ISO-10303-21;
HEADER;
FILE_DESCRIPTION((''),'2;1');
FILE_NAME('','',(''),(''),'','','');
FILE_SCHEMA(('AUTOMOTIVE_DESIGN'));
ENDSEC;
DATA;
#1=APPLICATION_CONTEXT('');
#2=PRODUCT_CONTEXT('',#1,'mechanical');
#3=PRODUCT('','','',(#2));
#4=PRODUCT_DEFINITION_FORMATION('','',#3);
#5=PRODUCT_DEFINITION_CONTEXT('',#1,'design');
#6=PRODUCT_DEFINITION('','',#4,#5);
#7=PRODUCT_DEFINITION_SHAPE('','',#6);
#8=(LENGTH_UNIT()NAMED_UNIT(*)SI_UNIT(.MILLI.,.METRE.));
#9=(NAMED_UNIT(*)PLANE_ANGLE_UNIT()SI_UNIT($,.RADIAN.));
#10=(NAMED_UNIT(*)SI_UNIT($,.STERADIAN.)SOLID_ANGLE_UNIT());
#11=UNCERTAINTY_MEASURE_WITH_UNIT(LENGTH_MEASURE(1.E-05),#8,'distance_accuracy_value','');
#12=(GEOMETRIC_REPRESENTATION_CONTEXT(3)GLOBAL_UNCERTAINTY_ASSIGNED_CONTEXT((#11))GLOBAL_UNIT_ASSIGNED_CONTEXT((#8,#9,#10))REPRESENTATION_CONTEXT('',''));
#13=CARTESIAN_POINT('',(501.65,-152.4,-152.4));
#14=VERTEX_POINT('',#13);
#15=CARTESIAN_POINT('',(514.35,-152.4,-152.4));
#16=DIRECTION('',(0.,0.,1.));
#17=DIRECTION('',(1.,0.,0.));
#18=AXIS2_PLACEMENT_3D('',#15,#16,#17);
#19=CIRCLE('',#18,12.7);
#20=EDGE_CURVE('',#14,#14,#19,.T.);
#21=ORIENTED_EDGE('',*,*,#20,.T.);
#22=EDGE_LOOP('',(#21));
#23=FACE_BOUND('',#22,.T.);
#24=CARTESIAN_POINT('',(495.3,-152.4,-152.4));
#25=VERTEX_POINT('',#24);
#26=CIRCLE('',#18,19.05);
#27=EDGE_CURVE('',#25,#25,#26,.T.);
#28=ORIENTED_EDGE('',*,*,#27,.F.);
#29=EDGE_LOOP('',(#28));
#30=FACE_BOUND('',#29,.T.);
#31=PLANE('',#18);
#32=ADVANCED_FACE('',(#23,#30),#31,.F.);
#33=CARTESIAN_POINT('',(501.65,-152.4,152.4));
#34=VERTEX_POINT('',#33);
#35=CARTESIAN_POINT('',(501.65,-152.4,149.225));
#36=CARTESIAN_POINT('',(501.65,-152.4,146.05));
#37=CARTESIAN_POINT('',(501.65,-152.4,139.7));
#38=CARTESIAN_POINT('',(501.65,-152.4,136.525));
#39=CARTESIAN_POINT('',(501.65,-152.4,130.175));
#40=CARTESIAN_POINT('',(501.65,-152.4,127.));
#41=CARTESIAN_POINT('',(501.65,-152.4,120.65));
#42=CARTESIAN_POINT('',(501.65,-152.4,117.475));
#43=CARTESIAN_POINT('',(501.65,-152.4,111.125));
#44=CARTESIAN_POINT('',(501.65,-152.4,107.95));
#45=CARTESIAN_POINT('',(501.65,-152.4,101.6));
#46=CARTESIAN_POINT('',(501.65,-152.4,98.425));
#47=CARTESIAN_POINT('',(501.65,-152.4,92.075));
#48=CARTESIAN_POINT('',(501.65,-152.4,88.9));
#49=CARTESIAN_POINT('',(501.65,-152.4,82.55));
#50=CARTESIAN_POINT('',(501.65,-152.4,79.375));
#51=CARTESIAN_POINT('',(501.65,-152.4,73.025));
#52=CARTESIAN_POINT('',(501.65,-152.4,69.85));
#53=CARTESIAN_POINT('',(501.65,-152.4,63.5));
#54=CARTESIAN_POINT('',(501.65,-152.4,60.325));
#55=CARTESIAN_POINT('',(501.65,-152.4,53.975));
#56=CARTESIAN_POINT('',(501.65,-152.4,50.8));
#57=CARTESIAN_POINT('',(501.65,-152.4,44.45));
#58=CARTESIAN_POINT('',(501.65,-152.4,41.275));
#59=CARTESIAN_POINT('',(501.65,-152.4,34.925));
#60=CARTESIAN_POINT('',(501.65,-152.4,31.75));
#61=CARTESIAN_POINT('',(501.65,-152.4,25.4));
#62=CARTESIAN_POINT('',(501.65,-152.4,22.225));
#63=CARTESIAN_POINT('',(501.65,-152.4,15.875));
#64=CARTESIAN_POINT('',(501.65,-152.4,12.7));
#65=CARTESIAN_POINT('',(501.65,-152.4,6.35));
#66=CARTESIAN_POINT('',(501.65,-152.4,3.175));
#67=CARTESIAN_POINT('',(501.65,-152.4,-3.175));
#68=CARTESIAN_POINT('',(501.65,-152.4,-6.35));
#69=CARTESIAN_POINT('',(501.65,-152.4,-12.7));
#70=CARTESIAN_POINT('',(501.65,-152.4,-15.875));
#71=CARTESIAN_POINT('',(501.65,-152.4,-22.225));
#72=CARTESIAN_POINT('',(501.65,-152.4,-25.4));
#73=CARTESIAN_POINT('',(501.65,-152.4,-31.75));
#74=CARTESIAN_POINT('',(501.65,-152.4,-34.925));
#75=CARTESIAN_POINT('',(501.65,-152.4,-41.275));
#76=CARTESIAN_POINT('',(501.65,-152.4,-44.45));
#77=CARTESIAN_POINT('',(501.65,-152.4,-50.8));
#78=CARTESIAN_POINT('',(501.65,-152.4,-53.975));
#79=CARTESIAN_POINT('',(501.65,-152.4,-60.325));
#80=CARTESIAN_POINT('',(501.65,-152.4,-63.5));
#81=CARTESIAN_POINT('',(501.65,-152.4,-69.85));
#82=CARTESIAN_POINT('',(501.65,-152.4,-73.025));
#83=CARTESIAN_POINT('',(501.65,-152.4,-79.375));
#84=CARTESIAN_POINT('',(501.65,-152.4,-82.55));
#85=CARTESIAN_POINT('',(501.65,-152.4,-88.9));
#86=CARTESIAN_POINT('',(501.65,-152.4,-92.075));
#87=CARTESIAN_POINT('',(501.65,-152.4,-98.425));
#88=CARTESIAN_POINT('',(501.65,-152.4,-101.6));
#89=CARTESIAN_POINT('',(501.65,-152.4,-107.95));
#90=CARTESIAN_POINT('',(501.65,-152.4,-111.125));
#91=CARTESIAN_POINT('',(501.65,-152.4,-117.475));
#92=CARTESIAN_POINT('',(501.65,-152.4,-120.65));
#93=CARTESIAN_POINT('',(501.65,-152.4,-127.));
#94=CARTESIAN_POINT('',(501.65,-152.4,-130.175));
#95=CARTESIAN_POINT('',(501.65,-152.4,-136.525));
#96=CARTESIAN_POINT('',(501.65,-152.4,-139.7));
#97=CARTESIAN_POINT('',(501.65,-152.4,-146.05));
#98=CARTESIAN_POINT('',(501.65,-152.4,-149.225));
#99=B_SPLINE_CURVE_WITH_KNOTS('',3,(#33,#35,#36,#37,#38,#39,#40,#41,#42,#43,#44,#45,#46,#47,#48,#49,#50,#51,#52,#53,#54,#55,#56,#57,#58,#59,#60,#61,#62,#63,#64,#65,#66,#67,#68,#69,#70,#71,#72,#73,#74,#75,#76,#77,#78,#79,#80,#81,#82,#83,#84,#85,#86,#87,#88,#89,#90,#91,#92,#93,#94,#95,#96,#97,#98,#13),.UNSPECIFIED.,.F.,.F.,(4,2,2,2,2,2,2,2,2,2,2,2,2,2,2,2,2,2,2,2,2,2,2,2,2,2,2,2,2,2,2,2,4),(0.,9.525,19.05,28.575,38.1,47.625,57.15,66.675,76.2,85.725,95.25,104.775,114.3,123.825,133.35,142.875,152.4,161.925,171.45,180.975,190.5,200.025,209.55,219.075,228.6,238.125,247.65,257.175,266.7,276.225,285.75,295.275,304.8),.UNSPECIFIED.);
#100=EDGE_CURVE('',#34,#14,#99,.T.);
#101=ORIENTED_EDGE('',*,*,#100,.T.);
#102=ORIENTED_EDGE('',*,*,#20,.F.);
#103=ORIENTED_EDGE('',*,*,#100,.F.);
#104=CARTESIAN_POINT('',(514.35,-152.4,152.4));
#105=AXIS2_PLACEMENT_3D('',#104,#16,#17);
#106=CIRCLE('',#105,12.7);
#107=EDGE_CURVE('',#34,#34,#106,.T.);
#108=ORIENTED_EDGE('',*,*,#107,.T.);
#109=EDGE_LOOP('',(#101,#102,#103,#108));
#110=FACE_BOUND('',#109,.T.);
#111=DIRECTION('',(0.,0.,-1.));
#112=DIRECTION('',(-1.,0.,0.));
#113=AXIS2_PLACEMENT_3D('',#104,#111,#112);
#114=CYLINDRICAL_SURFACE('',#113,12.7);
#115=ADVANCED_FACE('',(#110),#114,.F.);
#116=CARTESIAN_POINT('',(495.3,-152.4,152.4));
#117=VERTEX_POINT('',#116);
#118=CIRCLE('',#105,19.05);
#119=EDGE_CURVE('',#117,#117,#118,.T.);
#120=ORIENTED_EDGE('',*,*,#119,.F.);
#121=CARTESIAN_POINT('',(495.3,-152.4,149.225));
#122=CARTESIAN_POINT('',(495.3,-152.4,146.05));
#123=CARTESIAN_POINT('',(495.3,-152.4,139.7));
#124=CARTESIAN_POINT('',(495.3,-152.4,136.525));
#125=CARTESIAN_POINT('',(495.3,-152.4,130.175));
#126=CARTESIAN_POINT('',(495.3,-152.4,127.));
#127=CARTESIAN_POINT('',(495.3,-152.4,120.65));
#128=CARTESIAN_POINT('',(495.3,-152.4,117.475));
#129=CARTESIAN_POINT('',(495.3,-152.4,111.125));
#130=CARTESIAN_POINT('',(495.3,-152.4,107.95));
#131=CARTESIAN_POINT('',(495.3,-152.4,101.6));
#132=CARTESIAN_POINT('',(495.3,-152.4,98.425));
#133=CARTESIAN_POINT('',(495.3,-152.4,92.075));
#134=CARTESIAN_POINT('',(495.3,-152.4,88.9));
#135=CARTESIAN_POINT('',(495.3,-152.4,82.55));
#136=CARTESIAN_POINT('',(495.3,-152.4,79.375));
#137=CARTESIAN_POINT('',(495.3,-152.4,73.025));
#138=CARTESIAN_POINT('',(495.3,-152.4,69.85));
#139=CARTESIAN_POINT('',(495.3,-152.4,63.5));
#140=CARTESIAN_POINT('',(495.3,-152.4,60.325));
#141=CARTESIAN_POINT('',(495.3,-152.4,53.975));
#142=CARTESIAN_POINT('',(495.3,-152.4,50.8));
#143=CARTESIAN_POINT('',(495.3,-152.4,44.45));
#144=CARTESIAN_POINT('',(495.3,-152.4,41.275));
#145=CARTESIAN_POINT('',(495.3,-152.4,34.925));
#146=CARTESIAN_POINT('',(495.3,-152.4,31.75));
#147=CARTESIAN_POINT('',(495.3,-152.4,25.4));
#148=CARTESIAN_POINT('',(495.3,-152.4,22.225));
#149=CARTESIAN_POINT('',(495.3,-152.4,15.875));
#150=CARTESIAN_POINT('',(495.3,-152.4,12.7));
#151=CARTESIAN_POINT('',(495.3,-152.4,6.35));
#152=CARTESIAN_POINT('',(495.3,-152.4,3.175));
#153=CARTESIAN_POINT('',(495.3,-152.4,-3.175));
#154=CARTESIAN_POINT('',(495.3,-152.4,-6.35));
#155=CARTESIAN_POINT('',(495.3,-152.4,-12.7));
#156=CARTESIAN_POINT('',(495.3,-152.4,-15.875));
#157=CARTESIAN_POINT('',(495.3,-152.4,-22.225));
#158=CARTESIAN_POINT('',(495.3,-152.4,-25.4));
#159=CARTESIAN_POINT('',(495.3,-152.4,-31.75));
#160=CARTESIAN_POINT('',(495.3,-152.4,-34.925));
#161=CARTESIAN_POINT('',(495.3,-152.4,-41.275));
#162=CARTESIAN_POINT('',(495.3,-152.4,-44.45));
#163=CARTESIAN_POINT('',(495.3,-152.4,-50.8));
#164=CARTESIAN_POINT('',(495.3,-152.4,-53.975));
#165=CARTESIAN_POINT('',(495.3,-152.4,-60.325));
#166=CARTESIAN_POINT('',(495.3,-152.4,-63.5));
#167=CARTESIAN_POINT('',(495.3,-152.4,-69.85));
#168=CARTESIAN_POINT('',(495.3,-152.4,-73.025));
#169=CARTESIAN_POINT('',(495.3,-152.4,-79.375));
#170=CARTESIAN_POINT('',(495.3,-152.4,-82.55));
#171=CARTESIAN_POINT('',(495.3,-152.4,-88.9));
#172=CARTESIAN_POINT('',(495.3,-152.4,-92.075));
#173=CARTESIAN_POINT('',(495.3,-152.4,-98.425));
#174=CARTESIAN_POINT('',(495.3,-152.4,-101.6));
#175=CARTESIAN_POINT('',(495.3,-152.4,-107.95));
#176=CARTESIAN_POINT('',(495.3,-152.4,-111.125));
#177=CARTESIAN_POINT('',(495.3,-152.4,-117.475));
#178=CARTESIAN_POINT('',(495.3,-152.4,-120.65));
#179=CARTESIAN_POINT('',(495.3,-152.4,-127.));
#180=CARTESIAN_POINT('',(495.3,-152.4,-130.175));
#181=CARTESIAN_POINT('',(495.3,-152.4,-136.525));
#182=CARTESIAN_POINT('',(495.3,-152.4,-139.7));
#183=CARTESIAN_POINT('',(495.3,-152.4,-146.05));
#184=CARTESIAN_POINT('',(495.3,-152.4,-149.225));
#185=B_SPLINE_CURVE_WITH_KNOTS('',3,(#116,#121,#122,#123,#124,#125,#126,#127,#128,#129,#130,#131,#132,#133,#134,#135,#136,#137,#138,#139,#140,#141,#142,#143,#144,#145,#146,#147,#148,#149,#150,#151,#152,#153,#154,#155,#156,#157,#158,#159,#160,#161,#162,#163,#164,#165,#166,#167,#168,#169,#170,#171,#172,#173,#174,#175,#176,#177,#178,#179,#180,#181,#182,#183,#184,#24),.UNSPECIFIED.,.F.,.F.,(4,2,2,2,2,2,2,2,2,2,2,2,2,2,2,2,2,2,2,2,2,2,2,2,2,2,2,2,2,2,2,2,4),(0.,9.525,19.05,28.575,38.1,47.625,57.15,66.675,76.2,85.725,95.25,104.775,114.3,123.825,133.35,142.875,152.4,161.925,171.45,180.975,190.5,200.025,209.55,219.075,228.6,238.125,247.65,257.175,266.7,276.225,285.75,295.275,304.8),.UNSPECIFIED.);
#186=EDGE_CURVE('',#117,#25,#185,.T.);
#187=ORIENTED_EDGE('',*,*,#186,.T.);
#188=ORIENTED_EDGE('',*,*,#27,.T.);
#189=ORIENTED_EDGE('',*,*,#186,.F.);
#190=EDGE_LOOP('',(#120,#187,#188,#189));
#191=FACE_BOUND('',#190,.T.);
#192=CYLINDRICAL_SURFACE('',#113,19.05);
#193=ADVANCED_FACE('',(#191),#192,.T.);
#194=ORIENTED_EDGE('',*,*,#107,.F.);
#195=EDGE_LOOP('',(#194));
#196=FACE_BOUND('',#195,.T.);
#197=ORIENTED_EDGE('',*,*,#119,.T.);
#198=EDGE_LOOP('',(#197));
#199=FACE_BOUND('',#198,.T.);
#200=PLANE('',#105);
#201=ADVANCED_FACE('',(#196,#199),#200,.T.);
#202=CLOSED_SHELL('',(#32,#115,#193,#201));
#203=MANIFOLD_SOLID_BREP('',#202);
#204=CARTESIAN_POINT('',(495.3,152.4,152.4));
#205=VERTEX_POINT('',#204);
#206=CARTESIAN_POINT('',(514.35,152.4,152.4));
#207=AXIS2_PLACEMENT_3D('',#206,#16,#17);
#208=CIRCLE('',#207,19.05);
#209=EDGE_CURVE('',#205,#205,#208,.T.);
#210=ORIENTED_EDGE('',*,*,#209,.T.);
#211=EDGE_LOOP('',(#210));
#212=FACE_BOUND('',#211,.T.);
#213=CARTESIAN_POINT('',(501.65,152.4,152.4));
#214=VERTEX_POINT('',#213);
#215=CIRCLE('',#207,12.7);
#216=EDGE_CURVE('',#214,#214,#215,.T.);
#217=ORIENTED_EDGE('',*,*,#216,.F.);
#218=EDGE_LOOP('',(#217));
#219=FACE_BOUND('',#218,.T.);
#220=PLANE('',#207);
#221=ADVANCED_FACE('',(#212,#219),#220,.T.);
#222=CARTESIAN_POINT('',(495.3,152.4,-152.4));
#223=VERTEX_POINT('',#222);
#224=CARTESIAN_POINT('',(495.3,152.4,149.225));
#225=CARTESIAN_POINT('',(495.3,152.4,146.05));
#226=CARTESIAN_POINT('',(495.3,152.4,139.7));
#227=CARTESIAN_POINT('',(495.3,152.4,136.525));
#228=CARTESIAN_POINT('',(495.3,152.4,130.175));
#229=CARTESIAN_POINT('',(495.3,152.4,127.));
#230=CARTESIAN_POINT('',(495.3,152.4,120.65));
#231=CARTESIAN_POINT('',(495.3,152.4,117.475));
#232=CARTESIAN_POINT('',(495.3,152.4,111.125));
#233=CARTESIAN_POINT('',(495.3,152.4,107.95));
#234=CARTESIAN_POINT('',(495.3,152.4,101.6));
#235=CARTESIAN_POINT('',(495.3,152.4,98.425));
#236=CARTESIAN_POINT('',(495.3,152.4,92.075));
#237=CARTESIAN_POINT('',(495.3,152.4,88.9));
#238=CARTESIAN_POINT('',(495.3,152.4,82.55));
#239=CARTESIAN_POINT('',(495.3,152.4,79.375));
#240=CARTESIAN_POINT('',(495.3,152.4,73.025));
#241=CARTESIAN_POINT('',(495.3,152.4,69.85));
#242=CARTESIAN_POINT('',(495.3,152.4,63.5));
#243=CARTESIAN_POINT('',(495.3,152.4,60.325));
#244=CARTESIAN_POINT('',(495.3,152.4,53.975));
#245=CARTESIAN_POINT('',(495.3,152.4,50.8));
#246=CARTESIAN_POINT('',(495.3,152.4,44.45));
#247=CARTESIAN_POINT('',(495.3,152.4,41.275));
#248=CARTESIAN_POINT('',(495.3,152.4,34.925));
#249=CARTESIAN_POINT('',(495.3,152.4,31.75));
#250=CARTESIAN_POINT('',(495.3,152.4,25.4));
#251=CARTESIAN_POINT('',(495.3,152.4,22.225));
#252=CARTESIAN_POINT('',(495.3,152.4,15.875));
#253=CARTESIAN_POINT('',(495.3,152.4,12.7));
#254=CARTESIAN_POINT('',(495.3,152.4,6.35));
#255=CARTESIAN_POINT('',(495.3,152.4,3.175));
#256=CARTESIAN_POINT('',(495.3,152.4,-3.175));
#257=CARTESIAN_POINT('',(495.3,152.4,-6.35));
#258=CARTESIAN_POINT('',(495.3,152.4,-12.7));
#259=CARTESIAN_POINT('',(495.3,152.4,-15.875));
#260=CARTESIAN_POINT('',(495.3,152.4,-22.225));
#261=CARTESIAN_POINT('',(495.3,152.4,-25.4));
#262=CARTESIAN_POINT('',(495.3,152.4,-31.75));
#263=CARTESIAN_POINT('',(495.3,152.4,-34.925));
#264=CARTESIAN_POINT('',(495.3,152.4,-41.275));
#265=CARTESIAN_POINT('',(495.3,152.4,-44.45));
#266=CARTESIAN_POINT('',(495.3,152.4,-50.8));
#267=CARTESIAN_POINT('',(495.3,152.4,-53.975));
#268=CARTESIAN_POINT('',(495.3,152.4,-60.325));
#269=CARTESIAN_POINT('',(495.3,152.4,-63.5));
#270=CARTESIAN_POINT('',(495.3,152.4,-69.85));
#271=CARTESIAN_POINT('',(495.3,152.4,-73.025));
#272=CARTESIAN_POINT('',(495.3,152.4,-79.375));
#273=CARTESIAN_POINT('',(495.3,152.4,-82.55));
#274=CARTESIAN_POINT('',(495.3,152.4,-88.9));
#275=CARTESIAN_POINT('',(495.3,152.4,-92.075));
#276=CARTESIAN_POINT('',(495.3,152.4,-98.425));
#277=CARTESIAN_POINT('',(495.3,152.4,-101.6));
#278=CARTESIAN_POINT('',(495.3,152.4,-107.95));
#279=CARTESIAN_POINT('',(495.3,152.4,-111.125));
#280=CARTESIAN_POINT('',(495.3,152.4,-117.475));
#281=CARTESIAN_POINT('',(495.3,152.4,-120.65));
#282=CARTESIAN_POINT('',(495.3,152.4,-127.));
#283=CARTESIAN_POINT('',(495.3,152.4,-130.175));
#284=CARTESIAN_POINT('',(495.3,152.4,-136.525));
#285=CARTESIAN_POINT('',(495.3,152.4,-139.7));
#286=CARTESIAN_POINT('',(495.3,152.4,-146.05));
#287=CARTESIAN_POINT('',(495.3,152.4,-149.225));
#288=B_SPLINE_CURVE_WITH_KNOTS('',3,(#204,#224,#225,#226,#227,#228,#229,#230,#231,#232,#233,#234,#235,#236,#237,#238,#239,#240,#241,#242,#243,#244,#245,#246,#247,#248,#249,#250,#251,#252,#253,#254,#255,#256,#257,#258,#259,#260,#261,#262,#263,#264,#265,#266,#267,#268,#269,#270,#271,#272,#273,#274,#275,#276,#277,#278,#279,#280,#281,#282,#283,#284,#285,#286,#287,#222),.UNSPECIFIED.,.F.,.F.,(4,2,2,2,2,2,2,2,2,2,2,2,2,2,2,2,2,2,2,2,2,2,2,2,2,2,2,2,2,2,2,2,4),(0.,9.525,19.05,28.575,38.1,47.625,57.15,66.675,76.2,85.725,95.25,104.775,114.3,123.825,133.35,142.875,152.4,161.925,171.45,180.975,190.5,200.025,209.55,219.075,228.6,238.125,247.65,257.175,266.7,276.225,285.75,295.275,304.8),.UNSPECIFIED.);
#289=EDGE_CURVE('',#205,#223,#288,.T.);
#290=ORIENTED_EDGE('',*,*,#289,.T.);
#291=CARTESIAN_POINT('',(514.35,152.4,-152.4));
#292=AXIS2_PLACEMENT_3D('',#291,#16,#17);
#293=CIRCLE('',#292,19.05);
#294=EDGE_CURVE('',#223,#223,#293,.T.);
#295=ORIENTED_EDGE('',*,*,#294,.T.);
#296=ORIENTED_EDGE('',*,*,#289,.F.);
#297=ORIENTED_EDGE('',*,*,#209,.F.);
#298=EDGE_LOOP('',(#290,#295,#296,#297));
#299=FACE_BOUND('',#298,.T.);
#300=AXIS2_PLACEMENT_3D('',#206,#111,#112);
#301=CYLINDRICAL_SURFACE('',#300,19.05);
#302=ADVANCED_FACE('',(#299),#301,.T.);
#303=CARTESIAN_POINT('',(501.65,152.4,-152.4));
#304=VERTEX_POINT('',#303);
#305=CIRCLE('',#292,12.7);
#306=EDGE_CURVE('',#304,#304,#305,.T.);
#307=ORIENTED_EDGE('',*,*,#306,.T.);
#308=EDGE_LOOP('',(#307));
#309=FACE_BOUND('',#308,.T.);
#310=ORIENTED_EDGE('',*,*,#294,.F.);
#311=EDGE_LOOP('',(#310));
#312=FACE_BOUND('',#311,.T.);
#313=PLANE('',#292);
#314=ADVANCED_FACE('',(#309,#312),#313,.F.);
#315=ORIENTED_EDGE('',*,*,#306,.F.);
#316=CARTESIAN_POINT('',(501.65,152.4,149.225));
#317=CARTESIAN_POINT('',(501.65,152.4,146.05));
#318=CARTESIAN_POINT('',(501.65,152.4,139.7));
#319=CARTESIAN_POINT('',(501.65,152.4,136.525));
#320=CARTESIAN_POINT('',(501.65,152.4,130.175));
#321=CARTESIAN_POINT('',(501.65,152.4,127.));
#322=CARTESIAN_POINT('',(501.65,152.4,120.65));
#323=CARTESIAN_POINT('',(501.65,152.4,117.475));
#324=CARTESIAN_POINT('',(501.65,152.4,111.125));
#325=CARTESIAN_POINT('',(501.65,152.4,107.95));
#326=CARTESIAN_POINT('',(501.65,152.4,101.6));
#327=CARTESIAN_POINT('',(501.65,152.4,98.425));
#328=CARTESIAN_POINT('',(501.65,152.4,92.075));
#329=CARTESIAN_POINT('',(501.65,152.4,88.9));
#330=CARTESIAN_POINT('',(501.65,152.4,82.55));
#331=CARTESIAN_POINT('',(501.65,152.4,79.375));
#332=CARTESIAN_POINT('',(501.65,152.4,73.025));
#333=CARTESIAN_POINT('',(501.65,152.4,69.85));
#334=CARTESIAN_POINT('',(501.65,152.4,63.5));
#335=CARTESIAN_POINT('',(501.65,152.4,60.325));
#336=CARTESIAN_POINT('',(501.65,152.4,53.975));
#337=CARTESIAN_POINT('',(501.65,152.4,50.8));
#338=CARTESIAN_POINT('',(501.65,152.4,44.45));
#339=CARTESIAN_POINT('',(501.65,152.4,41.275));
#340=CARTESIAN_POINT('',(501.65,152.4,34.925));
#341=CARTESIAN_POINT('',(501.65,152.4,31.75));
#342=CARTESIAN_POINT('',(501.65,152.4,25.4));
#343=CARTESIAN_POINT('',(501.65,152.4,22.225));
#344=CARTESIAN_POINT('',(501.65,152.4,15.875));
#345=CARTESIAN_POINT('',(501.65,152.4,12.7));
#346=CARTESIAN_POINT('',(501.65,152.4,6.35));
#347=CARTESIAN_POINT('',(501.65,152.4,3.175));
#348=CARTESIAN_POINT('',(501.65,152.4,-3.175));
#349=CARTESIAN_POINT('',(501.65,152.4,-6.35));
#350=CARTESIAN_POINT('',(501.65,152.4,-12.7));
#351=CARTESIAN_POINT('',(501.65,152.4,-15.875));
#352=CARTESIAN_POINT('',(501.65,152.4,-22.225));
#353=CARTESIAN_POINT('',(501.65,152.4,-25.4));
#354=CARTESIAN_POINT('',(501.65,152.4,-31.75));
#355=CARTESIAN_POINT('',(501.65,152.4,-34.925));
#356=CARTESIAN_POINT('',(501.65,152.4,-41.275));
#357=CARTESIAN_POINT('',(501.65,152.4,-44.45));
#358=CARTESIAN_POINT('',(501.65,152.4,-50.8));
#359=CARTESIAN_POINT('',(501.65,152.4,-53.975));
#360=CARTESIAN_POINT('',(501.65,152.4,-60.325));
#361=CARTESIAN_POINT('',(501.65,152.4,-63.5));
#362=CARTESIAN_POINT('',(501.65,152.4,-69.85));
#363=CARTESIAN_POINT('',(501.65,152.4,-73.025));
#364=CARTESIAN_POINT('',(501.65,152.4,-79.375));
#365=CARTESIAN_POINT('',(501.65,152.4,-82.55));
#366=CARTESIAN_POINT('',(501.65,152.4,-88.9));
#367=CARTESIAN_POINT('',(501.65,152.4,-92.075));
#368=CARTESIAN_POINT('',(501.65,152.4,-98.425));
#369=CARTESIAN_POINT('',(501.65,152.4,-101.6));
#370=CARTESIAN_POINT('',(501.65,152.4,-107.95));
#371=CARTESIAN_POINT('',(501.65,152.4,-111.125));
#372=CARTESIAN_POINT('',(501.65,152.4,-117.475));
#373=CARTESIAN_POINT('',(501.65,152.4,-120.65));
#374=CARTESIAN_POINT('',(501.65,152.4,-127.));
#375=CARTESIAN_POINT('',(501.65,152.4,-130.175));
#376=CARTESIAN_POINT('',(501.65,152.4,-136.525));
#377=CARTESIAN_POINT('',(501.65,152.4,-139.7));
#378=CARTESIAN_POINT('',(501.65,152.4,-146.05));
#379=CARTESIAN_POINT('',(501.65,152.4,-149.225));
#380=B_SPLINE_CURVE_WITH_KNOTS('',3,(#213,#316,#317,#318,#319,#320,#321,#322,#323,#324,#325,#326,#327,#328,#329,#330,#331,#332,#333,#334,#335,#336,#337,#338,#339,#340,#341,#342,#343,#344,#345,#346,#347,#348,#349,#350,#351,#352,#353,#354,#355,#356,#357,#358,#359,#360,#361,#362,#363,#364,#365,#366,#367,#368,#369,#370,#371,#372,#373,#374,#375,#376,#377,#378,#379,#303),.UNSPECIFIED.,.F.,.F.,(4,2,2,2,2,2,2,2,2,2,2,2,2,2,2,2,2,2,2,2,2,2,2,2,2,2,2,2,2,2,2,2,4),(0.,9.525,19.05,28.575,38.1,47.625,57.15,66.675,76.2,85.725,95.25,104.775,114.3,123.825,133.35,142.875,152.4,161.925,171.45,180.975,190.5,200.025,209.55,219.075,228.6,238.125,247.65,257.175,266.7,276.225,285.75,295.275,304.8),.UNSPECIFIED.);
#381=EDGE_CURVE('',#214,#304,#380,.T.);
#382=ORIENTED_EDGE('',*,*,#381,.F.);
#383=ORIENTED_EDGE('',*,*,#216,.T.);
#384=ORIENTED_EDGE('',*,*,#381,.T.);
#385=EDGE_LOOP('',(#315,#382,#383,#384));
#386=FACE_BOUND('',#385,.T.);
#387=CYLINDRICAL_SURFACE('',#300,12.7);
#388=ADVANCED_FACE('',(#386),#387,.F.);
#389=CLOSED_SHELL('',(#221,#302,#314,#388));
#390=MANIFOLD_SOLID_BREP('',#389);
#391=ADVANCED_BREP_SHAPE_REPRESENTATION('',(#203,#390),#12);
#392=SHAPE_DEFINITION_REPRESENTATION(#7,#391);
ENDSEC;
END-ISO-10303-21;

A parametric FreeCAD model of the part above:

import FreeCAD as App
import Part
import Sketcher
Q = App.Units.Quantity

doc = App.newDocument("Part")
body = doc.addObject("PartDesign::Body", "Body")

# Sketch on XY plane
sketch1 = body.newObject("Sketcher::SketchObject", "Sketch")
sketch1.AttachmentSupport = (doc.getObject("XY_Plane"), [""])
sketch1.MapMode = "FlatFace"
sketch1.addGeometry(Part.Circle(App.Vector(514.35, 152.4, 0), App.Vector(0, 0, 1), 19.05), False)
sketch1.addGeometry(Part.Circle(App.Vector(514.35, 152.4, 0), App.Vector(0, 0, 1), 12.7), False)
sketch1.addConstraint(Sketcher.Constraint("Coincident", 1, 3, 0, 3))
sketch1.addConstraint(Sketcher.Constraint("Diameter", 1, Q("1 in")))
sketch1.addConstraint(Sketcher.Constraint("Diameter", 0, Q("1.5 in")))
sketch1.addConstraint(Sketcher.Constraint("DistanceY", -1, 1, 0, 3, Q("6 in")))
sketch1.addConstraint(Sketcher.Constraint("DistanceX", -1, 1, 0, 3, Q("20.25 in")))
pad1 = body.newObject("PartDesign::Pad", "Pad")
pad1.Profile = sketch1
pad1.Length = Q("12 in")
pad1.Midplane = True
body2 = doc.addObject("PartDesign::Body", "Body001")

# Sketch on XY plane
sketch2 = body2.newObject("Sketcher::SketchObject", "Sketch001")
sketch2.AttachmentSupport = (doc.getObject("XY_Plane001"), [""])
sketch2.MapMode = "FlatFace"
sketch2.addGeometry(Part.Circle(App.Vector(514.35, -152.4, 0), App.Vector(0, 0, 1), 19.05), False)
sketch2.addGeometry(Part.Circle(App.Vector(514.35, -152.4, 0), App.Vector(0, 0, 1), 12.7), False)
sketch2.addConstraint(Sketcher.Constraint("Coincident", 1, 3, 0, 3))
sketch2.addConstraint(Sketcher.Constraint("Diameter", 1, Q("1 in")))
sketch2.addConstraint(Sketcher.Constraint("Diameter", 0, Q("1.5 in")))
sketch2.addConstraint(Sketcher.Constraint("DistanceY", 0, 3, -1, 1, Q("6 in")))
sketch2.addConstraint(Sketcher.Constraint("DistanceX", -1, 1, 0, 3, Q("20.25 in")))
pad2 = body2.newObject("PartDesign::Pad", "Pad001")
pad2.Profile = sketch2
pad2.Length = Q("12 in")
pad2.Midplane = True

doc.recompute()
